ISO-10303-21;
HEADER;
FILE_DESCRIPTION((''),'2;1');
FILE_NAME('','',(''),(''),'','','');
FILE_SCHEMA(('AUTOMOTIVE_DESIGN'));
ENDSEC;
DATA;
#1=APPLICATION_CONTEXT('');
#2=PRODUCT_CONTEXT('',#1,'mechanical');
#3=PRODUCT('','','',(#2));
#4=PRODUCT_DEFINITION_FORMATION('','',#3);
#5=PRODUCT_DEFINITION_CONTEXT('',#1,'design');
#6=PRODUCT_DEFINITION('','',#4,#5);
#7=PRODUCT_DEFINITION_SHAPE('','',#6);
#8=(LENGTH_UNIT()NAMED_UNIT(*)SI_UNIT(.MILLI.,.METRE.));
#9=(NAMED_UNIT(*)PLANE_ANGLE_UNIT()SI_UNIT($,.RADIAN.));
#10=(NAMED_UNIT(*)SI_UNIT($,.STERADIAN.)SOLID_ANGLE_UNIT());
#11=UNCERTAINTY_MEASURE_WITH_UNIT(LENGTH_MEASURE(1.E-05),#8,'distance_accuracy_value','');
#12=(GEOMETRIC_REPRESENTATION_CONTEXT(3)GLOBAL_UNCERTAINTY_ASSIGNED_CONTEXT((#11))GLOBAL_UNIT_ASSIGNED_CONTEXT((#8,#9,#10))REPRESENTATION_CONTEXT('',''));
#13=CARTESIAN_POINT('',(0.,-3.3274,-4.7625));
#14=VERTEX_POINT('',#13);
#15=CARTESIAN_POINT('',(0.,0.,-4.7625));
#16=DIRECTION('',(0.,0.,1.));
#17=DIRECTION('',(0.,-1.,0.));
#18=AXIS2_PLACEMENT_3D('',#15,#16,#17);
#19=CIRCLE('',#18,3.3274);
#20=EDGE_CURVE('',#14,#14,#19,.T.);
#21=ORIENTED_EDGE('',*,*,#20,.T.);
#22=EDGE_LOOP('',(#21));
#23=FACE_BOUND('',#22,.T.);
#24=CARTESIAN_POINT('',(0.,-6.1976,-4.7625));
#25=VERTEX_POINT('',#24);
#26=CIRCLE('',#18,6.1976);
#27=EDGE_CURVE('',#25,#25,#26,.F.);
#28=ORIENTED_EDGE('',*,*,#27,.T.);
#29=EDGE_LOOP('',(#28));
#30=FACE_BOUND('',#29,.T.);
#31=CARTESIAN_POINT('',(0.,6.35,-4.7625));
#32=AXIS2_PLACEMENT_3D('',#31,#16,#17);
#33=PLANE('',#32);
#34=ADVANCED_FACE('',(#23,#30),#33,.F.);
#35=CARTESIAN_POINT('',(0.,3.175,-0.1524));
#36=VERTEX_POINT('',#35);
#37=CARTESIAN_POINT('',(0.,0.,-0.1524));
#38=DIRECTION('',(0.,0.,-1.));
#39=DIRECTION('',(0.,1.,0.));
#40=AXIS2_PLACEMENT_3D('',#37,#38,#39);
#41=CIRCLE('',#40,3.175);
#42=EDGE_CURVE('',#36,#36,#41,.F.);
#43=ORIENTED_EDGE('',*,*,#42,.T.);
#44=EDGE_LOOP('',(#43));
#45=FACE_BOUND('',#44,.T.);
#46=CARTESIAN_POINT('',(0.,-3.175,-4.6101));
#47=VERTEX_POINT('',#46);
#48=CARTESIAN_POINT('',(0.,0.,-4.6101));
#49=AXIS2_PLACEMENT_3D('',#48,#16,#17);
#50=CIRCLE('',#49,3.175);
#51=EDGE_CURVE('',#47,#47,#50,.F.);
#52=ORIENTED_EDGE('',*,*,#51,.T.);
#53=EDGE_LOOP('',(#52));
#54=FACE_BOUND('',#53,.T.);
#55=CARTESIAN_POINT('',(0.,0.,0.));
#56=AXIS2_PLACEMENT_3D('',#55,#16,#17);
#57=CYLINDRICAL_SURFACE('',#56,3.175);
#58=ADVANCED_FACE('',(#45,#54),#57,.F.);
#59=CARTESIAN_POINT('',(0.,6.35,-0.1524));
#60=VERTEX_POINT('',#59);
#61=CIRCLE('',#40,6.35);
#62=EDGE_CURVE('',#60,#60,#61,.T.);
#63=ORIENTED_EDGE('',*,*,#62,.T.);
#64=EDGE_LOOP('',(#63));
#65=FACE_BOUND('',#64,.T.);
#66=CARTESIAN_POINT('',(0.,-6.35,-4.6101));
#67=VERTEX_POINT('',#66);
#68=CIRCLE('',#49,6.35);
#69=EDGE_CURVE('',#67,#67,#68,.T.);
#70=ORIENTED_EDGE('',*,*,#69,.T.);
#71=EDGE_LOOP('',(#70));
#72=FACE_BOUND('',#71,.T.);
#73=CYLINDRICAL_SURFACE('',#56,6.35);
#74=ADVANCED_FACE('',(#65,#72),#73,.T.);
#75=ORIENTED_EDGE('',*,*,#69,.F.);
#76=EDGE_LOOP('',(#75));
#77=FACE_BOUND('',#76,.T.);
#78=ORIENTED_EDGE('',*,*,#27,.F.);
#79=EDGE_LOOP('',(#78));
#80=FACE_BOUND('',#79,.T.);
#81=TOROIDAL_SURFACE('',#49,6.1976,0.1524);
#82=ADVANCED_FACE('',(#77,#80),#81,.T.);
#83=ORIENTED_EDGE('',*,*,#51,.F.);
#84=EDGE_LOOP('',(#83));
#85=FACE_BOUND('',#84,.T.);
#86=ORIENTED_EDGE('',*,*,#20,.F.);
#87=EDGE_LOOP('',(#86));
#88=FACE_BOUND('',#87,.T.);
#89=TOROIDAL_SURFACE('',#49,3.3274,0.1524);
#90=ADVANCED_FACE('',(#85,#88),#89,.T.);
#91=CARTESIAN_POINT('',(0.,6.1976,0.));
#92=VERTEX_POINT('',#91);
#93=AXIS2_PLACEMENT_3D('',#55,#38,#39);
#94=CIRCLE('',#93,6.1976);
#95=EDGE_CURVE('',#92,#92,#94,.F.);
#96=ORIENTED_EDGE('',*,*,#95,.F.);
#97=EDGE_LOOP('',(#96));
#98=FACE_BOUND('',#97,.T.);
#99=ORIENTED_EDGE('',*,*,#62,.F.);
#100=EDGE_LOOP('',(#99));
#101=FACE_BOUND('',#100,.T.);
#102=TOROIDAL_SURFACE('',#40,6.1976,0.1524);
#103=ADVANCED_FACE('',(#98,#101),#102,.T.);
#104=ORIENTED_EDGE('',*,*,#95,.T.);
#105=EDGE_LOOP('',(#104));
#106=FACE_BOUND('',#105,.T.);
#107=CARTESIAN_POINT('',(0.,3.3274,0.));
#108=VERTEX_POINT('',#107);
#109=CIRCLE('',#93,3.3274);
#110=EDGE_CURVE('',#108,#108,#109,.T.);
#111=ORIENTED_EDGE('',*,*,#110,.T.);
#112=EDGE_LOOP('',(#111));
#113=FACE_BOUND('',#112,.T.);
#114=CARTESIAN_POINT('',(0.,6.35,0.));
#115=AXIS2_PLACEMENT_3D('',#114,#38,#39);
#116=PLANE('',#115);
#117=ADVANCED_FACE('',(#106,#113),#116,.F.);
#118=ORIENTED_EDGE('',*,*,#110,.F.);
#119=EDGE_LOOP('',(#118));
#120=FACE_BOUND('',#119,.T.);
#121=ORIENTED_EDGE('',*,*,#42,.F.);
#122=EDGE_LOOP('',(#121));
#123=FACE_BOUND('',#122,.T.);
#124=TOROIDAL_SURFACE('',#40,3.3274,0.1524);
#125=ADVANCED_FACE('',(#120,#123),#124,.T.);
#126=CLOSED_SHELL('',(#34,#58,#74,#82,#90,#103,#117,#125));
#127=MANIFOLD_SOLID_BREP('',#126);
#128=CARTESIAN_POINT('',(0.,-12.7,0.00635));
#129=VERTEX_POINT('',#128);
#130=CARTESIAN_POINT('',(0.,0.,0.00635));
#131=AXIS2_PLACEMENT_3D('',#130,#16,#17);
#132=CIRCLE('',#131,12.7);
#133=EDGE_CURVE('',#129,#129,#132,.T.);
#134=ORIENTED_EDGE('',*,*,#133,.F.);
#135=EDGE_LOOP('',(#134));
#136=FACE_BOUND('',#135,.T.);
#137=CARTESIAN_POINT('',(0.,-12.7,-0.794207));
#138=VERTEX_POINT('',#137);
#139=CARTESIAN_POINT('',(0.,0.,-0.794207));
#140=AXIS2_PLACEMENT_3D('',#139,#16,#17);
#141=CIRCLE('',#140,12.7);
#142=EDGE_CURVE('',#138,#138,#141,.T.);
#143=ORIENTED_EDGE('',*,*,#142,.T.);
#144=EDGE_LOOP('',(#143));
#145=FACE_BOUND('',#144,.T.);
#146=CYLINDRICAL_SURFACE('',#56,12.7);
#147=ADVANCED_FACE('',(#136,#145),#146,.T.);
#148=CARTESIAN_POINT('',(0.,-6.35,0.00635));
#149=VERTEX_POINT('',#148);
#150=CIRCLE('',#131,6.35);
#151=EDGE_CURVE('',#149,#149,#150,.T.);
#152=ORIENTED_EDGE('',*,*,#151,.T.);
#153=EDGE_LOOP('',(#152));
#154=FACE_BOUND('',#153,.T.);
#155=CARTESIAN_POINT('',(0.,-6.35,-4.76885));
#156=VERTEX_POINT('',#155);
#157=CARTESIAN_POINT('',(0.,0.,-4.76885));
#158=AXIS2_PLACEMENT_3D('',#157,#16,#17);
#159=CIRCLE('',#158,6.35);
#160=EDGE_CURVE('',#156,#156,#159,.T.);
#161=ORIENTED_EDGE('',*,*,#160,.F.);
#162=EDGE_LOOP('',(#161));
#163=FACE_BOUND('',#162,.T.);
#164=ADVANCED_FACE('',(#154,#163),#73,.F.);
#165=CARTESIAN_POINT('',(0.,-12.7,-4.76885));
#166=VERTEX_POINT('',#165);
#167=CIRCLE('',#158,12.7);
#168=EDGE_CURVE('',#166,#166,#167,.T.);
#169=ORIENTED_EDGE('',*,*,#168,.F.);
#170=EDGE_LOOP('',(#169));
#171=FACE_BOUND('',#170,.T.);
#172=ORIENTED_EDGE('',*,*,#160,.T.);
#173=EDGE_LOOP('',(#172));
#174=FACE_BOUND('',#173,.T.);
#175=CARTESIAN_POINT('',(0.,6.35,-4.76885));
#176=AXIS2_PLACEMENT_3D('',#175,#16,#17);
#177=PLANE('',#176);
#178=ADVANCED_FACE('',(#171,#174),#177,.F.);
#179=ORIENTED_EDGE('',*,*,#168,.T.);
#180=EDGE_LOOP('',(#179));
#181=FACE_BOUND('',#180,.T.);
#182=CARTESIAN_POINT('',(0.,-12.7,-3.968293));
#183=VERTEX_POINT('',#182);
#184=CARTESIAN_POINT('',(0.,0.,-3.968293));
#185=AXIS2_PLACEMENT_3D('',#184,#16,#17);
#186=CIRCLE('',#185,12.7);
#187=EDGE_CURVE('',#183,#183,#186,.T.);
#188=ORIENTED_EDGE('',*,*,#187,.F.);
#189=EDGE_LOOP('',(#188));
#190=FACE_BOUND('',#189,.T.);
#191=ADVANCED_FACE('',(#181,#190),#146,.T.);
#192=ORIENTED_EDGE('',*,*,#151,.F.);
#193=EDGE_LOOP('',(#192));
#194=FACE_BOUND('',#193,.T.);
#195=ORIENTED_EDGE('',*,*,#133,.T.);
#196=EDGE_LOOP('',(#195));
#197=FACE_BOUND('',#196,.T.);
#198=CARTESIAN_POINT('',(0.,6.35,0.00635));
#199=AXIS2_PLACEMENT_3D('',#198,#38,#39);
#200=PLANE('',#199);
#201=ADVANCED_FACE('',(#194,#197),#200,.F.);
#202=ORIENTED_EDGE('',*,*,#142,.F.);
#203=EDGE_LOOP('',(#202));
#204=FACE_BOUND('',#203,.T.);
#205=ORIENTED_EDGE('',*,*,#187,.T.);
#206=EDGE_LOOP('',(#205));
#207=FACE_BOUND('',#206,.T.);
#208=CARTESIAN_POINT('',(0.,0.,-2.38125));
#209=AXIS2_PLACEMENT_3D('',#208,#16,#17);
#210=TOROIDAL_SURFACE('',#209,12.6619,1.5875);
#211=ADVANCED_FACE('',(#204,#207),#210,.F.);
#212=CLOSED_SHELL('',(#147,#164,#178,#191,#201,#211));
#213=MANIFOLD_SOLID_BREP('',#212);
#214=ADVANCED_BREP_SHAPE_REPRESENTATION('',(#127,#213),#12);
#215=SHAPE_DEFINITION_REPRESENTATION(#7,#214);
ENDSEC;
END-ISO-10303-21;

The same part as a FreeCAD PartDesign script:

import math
import FreeCAD as App
import Part
import Sketcher
from FreeCAD import Vector
Q = App.Units.Quantity


def edges_at(feature, points):
    """Names of the edges that pass closest to the given points."""
    edges = feature.Shape.Edges
    near = lambda p: min(range(len(edges)), key=lambda i: edges[i].distToShape(Part.Vertex(*p))[0])
    return sorted({f"Edge{near(p) + 1}" for p in points})


def add_polygon(sketch, points):
    """Adds a closed chain of lines whose ends are joined by coincident constraints."""
    first, n = sketch.GeometryCount, len(points)
    for a, b in zip(points, points[1:] + points[:1]):
        sketch.addGeometry(Part.LineSegment(App.Vector(*a, 0), App.Vector(*b, 0)), False)
    for i in range(n):
        sketch.addConstraint(Sketcher.Constraint("Coincident", first + i, 2, first + (i + 1) % n, 1))

doc = App.newDocument("Part")
body = doc.addObject("PartDesign::Body", "Body")

# Sketch on YZ plane
sketch1 = body.newObject("Sketcher::SketchObject", "Sketch")
sketch1.AttachmentSupport = (doc.getObject("YZ_Plane"), [""])
sketch1.MapMode = "FlatFace"
sketch1.addGeometry(Part.LineSegment(Vector(12.7, -4.76885, 0), Vector(12.7, -3.968293, 0)), False)
sketch1.addGeometry(Part.ArcOfCircle(Part.Circle(Vector(12.6619, -2.38125, 0), Vector(0, 0, 1), 1.5875), math.radians(88.624769), math.radians(271.375231)), False)
sketch1.addGeometry(Part.LineSegment(Vector(12.7, -0.794207, 0), Vector(12.7, 0.00635, 0)), False)
sketch1.addGeometry(Part.LineSegment(Vector(12.7, 0.00635, 0), Vector(6.35, 0.00635, 0)), False)
sketch1.addGeometry(Part.LineSegment(Vector(6.35, 0.00635, 0), Vector(6.35, -4.76885, 0)), False)
sketch1.addGeometry(Part.LineSegment(Vector(6.35, -4.76885, 0), Vector(12.7, -4.76885, 0)), False)
sketch1.addConstraint(Sketcher.Constraint("Coincident", 0, 2, 1, 2))
sketch1.addConstraint(Sketcher.Constraint("Coincident", 1, 1, 2, 1))
sketch1.addConstraint(Sketcher.Constraint("Coincident", 2, 2, 3, 1))
sketch1.addConstraint(Sketcher.Constraint("Coincident", 3, 2, 4, 1))
sketch1.addConstraint(Sketcher.Constraint("Coincident", 4, 2, 5, 1))
sketch1.addConstraint(Sketcher.Constraint("Coincident", 5, 2, 0, 1))
sketch1.addConstraint(Sketcher.Constraint("Vertical", 0))
sketch1.addConstraint(Sketcher.Constraint("Vertical", 2))
sketch1.addConstraint(Sketcher.Constraint("Horizontal", 3))
sketch1.addConstraint(Sketcher.Constraint("Vertical", 4))
sketch1.addConstraint(Sketcher.Constraint("Horizontal", 5))
sketch1.addConstraint(Sketcher.Constraint("Vertical", 0, 2, 1, 1))
sketch1.addConstraint(Sketcher.Constraint("Equal", 0, 2))
sketch1.addConstraint(Sketcher.Constraint("Radius", 1, Q("0.0625 in")))
sketch1.addConstraint(Sketcher.Constraint("DistanceX", 3, 2, 3, 1, Q("0.25 in")))
sketch1.addConstraint(Sketcher.Constraint("DistanceX", -1, 1, 0, 2, Q("0.5 in")))
sketch1.addConstraint(Sketcher.Constraint("DistanceY", 4, 2, 4, 1, Q("0.188 in")))
sketch1.addConstraint(Sketcher.Constraint("DistanceY", 1, 3, -1, 1, Q("0.09375 in")))
sketch1.addConstraint(Sketcher.Constraint("DistanceX", -1, 1, 1, 3, Q("0.4985 in")))
revolution = body.newObject("PartDesign::Revolution", "Revolution")
revolution.Profile = sketch1
revolution.ReferenceAxis = (sketch1, ["V_Axis"])
revolution.Angle = 360
body2 = doc.addObject("PartDesign::Body", "Body001")

# Sketch on YZ plane
sketch2 = body2.newObject("Sketcher::SketchObject", "Sketch001")
sketch2.AttachmentSupport = (doc.getObject("YZ_Plane001"), [""])
sketch2.MapMode = "FlatFace"
add_polygon(sketch2, [(6.35, 0), (3.175, 0), (3.175, -4.7625), (6.35, -4.7625)])  # lines 0-3
sketch2.addConstraint(Sketcher.Constraint("Horizontal", 0))
sketch2.addConstraint(Sketcher.Constraint("Vertical", 1))
sketch2.addConstraint(Sketcher.Constraint("Horizontal", 2))
sketch2.addConstraint(Sketcher.Constraint("Vertical", 3))
sketch2.addConstraint(Sketcher.Constraint("PointOnObject", 0, 2, -1))
sketch2.addConstraint(Sketcher.Constraint("DistanceX", 0, 2, 0, 1, Q("0.125 in")))
sketch2.addConstraint(Sketcher.Constraint("DistanceY", 1, 2, 1, 1, Q("0.1875 in")))
sketch2.addConstraint(Sketcher.Constraint("DistanceX", -1, 1, 2, 2, Q("0.25 in")))
revolution2 = body2.newObject("PartDesign::Revolution", "Revolution001")
revolution2.Profile = sketch2
revolution2.ReferenceAxis = (sketch2, ["V_Axis"])
revolution2.Angle = 360
doc.recompute()

fillet = body2.newObject("PartDesign::Fillet", "Fillet")
fillet.Base = (revolution2, edges_at(revolution2, [
    (0, 6.35, 0),
    (0, 6.35, -4.763),
    (0, 3.175, -4.763),
    (0, 3.175, 0),
]))
fillet.Radius = Q("0.006 in")

doc.recompute()
